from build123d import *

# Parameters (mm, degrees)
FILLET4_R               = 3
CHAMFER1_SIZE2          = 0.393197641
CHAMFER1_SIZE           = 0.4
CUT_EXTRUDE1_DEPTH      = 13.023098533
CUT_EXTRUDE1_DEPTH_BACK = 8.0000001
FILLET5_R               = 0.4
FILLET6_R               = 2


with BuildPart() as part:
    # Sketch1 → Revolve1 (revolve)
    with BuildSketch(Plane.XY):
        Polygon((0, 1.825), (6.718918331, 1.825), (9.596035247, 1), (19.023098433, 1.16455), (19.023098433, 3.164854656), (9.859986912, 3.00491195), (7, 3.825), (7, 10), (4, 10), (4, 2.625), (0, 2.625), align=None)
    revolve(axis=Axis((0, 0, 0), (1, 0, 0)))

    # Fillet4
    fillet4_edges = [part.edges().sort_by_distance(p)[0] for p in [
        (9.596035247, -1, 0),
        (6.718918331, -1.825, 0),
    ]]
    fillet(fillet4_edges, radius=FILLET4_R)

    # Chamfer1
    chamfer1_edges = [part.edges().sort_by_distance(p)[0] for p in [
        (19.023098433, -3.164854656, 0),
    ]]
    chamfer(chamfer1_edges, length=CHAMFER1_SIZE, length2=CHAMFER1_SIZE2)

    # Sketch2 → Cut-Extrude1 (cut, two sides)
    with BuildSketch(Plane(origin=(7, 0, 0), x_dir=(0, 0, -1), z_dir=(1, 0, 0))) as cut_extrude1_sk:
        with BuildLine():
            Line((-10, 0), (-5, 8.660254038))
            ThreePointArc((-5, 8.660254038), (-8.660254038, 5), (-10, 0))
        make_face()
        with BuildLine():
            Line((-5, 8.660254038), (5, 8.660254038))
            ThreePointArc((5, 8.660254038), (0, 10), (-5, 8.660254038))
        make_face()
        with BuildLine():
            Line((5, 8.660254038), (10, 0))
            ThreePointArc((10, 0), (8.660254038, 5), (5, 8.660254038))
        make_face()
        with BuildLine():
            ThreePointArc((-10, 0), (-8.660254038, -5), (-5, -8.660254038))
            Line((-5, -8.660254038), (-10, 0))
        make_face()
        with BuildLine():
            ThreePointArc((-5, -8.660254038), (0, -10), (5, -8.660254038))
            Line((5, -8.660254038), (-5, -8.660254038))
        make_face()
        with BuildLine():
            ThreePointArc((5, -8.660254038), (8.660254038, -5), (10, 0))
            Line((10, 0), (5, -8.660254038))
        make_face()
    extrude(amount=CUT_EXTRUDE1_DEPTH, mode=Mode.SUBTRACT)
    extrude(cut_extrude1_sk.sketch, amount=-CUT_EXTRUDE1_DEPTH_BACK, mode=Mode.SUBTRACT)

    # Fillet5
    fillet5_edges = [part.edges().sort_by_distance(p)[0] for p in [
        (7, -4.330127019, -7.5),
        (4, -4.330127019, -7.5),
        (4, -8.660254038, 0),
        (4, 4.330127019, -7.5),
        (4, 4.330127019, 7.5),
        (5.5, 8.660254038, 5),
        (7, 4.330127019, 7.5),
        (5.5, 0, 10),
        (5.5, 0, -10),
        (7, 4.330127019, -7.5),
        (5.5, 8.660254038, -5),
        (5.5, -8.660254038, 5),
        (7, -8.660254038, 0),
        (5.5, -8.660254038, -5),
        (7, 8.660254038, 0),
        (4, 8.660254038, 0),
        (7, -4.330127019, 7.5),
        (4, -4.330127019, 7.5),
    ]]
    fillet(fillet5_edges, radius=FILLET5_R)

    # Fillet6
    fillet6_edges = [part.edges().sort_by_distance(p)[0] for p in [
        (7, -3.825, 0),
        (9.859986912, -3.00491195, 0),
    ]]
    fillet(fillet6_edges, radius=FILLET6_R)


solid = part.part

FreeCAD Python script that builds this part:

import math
import FreeCAD as App
import Part
import Sketcher

V = App.Vector
Q = App.Units.Quantity


def edges_at(feature, points):
    """Names of the edges that pass closest to the given points."""
    edges = feature.Shape.Edges
    near = lambda p: min(range(len(edges)), key=lambda i: edges[i].distToShape(Part.Vertex(*p))[0])
    return sorted({f"Edge{near(p) + 1}" for p in points})

doc = App.newDocument("Part")
body = doc.addObject("PartDesign::Body", "Body")

sketch1 = body.newObject("Sketcher::SketchObject", "Sketch")
sketch1.AttachmentSupport = (doc.getObject("XY_Plane"), [""])
sketch1.MapMode = "FlatFace"
sketch1.addGeometry(Part.LineSegment(V(0, 1.8, 0), V(6.7, 1.8, 0)), False)
sketch1.addGeometry(Part.LineSegment(V(6.7, 1.8, 0), V(9.6, 1, 0)), False)
sketch1.addGeometry(Part.LineSegment(V(9.6, 1, 0), V(19, 1.2, 0)), False)
sketch1.addGeometry(Part.LineSegment(V(19, 1.2, 0), V(19, 3.2, 0)), False)
sketch1.addGeometry(Part.LineSegment(V(19, 3.2, 0), V(9.9, 3, 0)), False)
sketch1.addGeometry(Part.LineSegment(V(9.9, 3, 0), V(7, 3.8, 0)), False)
sketch1.addGeometry(Part.LineSegment(V(7, 3.8, 0), V(7, 10, 0)), False)
sketch1.addGeometry(Part.LineSegment(V(7, 10, 0), V(4, 10, 0)), False)
sketch1.addGeometry(Part.LineSegment(V(4, 10, 0), V(4, 2.6, 0)), False)
sketch1.addGeometry(Part.LineSegment(V(4, 2.6, 0), V(0, 2.6, 0)), False)
sketch1.addGeometry(Part.LineSegment(V(0, 2.6, 0), V(0, 1.8, 0)), False)
sketch1.addConstraint(Sketcher.Constraint("Coincident", 0, 2, 1, 1))
sketch1.addConstraint(Sketcher.Constraint("Coincident", 1, 2, 2, 1))
sketch1.addConstraint(Sketcher.Constraint("Coincident", 2, 2, 3, 1))
sketch1.addConstraint(Sketcher.Constraint("Coincident", 3, 2, 4, 1))
sketch1.addConstraint(Sketcher.Constraint("Coincident", 4, 2, 5, 1))
sketch1.addConstraint(Sketcher.Constraint("Coincident", 5, 2, 6, 1))
sketch1.addConstraint(Sketcher.Constraint("Coincident", 6, 2, 7, 1))
sketch1.addConstraint(Sketcher.Constraint("Coincident", 7, 2, 8, 1))
sketch1.addConstraint(Sketcher.Constraint("Coincident", 8, 2, 9, 1))
sketch1.addConstraint(Sketcher.Constraint("Coincident", 9, 2, 10, 1))
sketch1.addConstraint(Sketcher.Constraint("Coincident", 10, 2, 0, 1))
sketch1.addConstraint(Sketcher.Constraint("Horizontal", 0))
sketch1.addConstraint(Sketcher.Constraint("Vertical", 3))
sketch1.addConstraint(Sketcher.Constraint("Vertical", 6))
sketch1.addConstraint(Sketcher.Constraint("Horizontal", 7))
sketch1.addConstraint(Sketcher.Constraint("Vertical", 8))
sketch1.addConstraint(Sketcher.Constraint("Horizontal", 9))
sketch1.addConstraint(Sketcher.Constraint("Vertical", 10))
sketch1.addConstraint(Sketcher.Constraint("PointOnObject", 9, 2, -2))
sketch1.addConstraint(Sketcher.Constraint("Parallel", 2, 4))
sketch1.addConstraint(Sketcher.Constraint("Parallel", 1, 5))
sketch1.addConstraint(Sketcher.Constraint("DistanceX", 7, 2, 7, 1, 3.0))
sketch1.addConstraint(Sketcher.Constraint("DistanceX", 9, 2, 9, 1, 4.0))
sketch1.addConstraint(Sketcher.Constraint("Angle", 1, Q("-16 deg")))
sketch1.addConstraint(Sketcher.Constraint("Angle", 2, Q("1 deg")))
sketch1.addConstraint(Sketcher.Constraint("DistanceY", 10, 2, 10, 1, 0.8))
sketch1.addConstraint(Sketcher.Constraint("DistanceY", -1, 1, 1, 2, 1.0))
sketch1.addConstraint(Sketcher.Constraint("DistanceY", -1, 1, 6, 2, 10.0))
sketch1.addConstraint(Sketcher.Constraint("DistanceY", 0, 2, 5, 2, 2.0))
sketch1.addConstraint(Sketcher.Constraint("DistanceY", 6, 1, 6, 2, 6.175))
sketch1.addConstraint(Sketcher.Constraint("Distance", 2, 9.428499))
sketch1.addConstraint(Sketcher.Constraint("DistanceX", 0, 1, 0, 2, 6.718918))
sketch1.addConstraint(Sketcher.Constraint("DistanceY", 3, 1, 3, 2, 2.000305))
revolution = body.newObject("PartDesign::Revolution", "Revolution")
revolution.Profile = sketch1
revolution.ReferenceAxis = (sketch1, ["H_Axis"])
revolution.Angle = 360
doc.recompute()

fillet = body.newObject("PartDesign::Fillet", "Fillet")
fillet.Base = (revolution, edges_at(revolution, [(9.596, -1, 0), (6.719, -1.825, 0)]))
fillet.Radius = 3
doc.recompute()

chamfer = body.newObject("PartDesign::Chamfer", "Chamfer")
chamfer.Base = (fillet, edges_at(fillet, [(19.023, -3.165, 0)]))
chamfer.ChamferType = "Two distances"
chamfer.Size = 0.4
chamfer.Size2 = 0.393198

sketch2 = body.newObject("Sketcher::SketchObject", "Sketch001")
sketch2.AttachmentSupport = (doc.getObject("YZ_Plane"), [""])
sketch2.MapMode = "FlatFace"
sketch2.AttachmentOffset = App.Placement(V(0, 0, 7), App.Rotation())
sketch2.addGeometry(Part.LineSegment(V(0, 10, 0), V(9, 5, 0)), False)
sketch2.addGeometry(Part.ArcOfCircle(Part.Circle(V(0, 0, 0), V(0, 0, 1), 10), math.radians(30), math.radians(90)), False)
sketch2.addGeometry(Part.LineSegment(V(9, 5, 0), V(9, -5, 0)), False)
sketch2.addGeometry(Part.ArcOfCircle(Part.Circle(V(0, 0, 0), V(0, 0, 1), 10), math.radians(-30), math.radians(30)), False)
sketch2.addGeometry(Part.LineSegment(V(9, -5, 0), V(0, -10, 0)), False)
sketch2.addGeometry(Part.ArcOfCircle(Part.Circle(V(0, 0, 0), V(0, 0, 1), 10), math.radians(-90), math.radians(-30)), False)
sketch2.addGeometry(Part.ArcOfCircle(Part.Circle(V(0, 0, 0), V(0, 0, 1), 10), math.radians(90), math.radians(150)), False)
sketch2.addGeometry(Part.LineSegment(V(-9, 5, 0), V(0, 10, 0)), False)
sketch2.addGeometry(Part.ArcOfCircle(Part.Circle(V(0, 0, 0), V(0, 0, 1), 10), math.radians(150), math.radians(210)), False)
sketch2.addGeometry(Part.LineSegment(V(-9, -5, 0), V(-9, 5, 0)), False)
sketch2.addGeometry(Part.ArcOfCircle(Part.Circle(V(0, 0, 0), V(0, 0, 1), 10), math.radians(-150), math.radians(-90)), False)
sketch2.addGeometry(Part.LineSegment(V(0, -10, 0), V(-9, -5, 0)), False)
sketch2.addConstraint(Sketcher.Constraint("Coincident", 0, 1, 1, 2))
sketch2.addConstraint(Sketcher.Constraint("Coincident", 1, 1, 0, 2))
sketch2.addConstraint(Sketcher.Constraint("Coincident", 2, 1, 3, 2))
sketch2.addConstraint(Sketcher.Constraint("Coincident", 3, 1, 2, 2))
sketch2.addConstraint(Sketcher.Constraint("Coincident", 4, 1, 5, 2))
sketch2.addConstraint(Sketcher.Constraint("Coincident", 5, 1, 4, 2))
sketch2.addConstraint(Sketcher.Constraint("Coincident", 6, 1, 7, 2))
sketch2.addConstraint(Sketcher.Constraint("Coincident", 7, 1, 6, 2))
sketch2.addConstraint(Sketcher.Constraint("Coincident", 8, 1, 9, 2))
sketch2.addConstraint(Sketcher.Constraint("Coincident", 9, 1, 8, 2))
sketch2.addConstraint(Sketcher.Constraint("Coincident", 10, 1, 11, 2))
sketch2.addConstraint(Sketcher.Constraint("Coincident", 11, 1, 10, 2))
sketch2.addConstraint(Sketcher.Constraint("Vertical", 2))
sketch2.addConstraint(Sketcher.Constraint("Vertical", 9))
sketch2.addConstraint(Sketcher.Constraint("Coincident", 1, 3, -1, 1))
sketch2.addConstraint(Sketcher.Constraint("Coincident", 3, 3, -1, 1))
sketch2.addConstraint(Sketcher.Constraint("Coincident", 5, 3, -1, 1))
sketch2.addConstraint(Sketcher.Constraint("Coincident", 6, 3, -1, 1))
sketch2.addConstraint(Sketcher.Constraint("Coincident", 8, 3, -1, 1))
sketch2.addConstraint(Sketcher.Constraint("Coincident", 10, 3, -1, 1))
sketch2.addConstraint(Sketcher.Constraint("Coincident", 2, 1, 1, 1))
sketch2.addConstraint(Sketcher.Constraint("Coincident", 4, 1, 3, 1))
sketch2.addConstraint(Sketcher.Constraint("Coincident", 6, 1, 0, 1))
sketch2.addConstraint(Sketcher.Constraint("Coincident", 8, 1, 7, 1))
sketch2.addConstraint(Sketcher.Constraint("Coincident", 10, 1, 9, 1))
sketch2.addConstraint(Sketcher.Constraint("PointOnObject", 0, 1, -2))
sketch2.addConstraint(Sketcher.Constraint("PointOnObject", 5, 1, -2))
sketch2.addConstraint(Sketcher.Constraint("PointOnObject", 11, 1, -2))
sketch2.addConstraint(Sketcher.Constraint("Parallel", 4, 7))
sketch2.addConstraint(Sketcher.Constraint("Radius", 1, 10.0))
sketch2.addConstraint(Sketcher.Constraint("DistanceY", 2, 2, 2, 1, 10.0))
pocket1 = body.newObject("PartDesign::Pocket", "Pocket")
pocket1.Profile = sketch2
pocket1.Type = "ThroughAll"
pocket1.Midplane = True
doc.recompute()

fillet2 = body.newObject("PartDesign::Fillet", "Fillet001")
fillet2.Base = (pocket1, edges_at(pocket1, [
    (7, -4.33, -7.5),
    (4, -4.33, -7.5),
    (4, -8.66, 0),
    (4, 4.33, -7.5),
    (4, 4.33, 7.5),
    (5.5, 8.66, 5),
    (7, 4.33, 7.5),
    (5.5, 0, 10),
    (5.5, 0, -10),
    (7, 4.33, -7.5),
    (5.5, 8.66, -5),
    (5.5, -8.66, 5),
    (7, -8.66, 0),
    (5.5, -8.66, -5),
    (7, 8.66, 0),
    (4, 8.66, 0),
    (7, -4.33, 7.5),
    (4, -4.33, 7.5),
]))
fillet2.Radius = 0.4
doc.recompute()

fillet3 = body.newObject("PartDesign::Fillet", "Fillet002")
fillet3.Base = (fillet2, edges_at(fillet2, [(7, -3.825, 0), (9.86, -3.005, 0)]))
fillet3.Radius = 2

doc.recompute()
